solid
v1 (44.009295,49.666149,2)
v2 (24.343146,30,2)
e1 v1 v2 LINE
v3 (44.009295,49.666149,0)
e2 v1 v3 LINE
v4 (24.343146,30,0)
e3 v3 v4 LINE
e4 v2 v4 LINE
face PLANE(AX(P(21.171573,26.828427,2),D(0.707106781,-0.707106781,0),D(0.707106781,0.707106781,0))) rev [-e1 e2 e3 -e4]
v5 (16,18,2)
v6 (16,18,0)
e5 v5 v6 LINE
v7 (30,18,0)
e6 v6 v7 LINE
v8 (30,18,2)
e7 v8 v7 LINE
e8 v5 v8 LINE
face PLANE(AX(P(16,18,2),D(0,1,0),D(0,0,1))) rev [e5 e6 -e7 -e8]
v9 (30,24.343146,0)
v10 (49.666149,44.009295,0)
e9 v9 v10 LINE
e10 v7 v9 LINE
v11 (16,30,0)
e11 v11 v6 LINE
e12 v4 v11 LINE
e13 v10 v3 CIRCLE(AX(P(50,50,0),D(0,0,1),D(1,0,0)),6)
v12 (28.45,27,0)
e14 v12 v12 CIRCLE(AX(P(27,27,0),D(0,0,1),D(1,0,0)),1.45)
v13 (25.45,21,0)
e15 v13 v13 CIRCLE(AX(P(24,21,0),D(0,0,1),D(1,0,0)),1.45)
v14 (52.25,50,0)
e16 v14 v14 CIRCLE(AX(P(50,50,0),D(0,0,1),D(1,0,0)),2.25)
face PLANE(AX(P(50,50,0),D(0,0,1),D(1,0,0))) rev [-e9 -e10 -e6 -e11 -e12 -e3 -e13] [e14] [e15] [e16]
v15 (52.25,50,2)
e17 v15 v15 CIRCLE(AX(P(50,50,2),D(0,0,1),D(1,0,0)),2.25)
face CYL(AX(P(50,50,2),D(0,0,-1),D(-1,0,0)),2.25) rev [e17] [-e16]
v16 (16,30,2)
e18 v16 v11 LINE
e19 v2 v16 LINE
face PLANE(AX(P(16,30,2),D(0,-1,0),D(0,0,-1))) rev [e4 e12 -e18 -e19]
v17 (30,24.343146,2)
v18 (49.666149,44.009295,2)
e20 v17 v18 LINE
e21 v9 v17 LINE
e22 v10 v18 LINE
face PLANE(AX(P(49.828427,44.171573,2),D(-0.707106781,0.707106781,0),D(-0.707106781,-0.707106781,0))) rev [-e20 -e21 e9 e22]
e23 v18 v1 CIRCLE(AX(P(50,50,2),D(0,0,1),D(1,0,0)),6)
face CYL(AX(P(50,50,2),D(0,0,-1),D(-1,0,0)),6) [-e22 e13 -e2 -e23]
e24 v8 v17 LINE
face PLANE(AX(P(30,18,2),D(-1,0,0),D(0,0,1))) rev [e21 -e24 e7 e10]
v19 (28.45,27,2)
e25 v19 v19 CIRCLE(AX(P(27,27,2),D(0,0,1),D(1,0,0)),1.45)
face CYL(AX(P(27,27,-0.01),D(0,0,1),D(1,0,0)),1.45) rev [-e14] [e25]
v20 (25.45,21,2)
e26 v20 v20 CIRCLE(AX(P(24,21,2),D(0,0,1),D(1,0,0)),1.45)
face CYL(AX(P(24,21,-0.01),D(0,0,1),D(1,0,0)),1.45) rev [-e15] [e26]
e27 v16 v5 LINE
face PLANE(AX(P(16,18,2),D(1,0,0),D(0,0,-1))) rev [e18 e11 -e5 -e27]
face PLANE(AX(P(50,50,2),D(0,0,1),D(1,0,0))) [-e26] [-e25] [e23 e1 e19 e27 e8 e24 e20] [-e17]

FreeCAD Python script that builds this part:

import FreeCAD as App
import Part
import Sketcher
from FreeCAD import Vector
Q = App.Units.Quantity

doc = App.newDocument("Part")
body = doc.addObject("PartDesign::Body", "Body")

sketch1 = body.newObject("Sketcher::SketchObject", "Sketch")
sketch1.AttachmentSupport = (doc.getObject("XY_Plane"), [""])
sketch1.MapMode = "FlatFace"
sketch1.addGeometry(Part.Circle(Vector(50, 50, 0), Vector(0, 0, 1), 6), False)
sketch1.addGeometry(Part.Circle(Vector(50, 50, 0), Vector(0, 0, 1), 2.2), False)
sketch1.addConstraint(Sketcher.Constraint("Coincident", 1, 3, 0, 3))
sketch1.addConstraint(Sketcher.Constraint("Diameter", 0, Q("12 mm")))
sketch1.addConstraint(Sketcher.Constraint("Diameter", 1, Q("4.5 mm")))
sketch1.addConstraint(Sketcher.Constraint("DistanceX", -1, 1, 0, 3, Q("50 mm")))
sketch1.addConstraint(Sketcher.Constraint("DistanceY", -1, 1, 0, 3, Q("50 mm")))
pad1 = body.newObject("PartDesign::Pad", "Pad")
pad1.Profile = sketch1
pad1.Length = 2

sketch2 = body.newObject("Sketcher::SketchObject", "Sketch001")
sketch2.AttachmentSupport = (doc.getObject("XY_Plane"), [""])
sketch2.MapMode = "FlatFace"
sketch2.addGeometry(Part.LineSegment(Vector(44, 50, 0), Vector(21, 27, 0)), False)
sketch2.addGeometry(Part.LineSegment(Vector(21, 27, 0), Vector(27, 21, 0)), False)
sketch2.addGeometry(Part.LineSegment(Vector(27, 21, 0), Vector(50, 44, 0)), False)
sketch2.addGeometry(Part.LineSegment(Vector(50, 44, 0), Vector(44, 50, 0)), False)
sketch2.addConstraint(Sketcher.Constraint("Coincident", 0, 2, 1, 1))
sketch2.addConstraint(Sketcher.Constraint("Coincident", 1, 2, 2, 1))
sketch2.addConstraint(Sketcher.Constraint("Coincident", 2, 2, 3, 1))
sketch2.addConstraint(Sketcher.Constraint("Coincident", 3, 2, 0, 1))
sketch2.addConstraint(Sketcher.Constraint("Perpendicular", 0, 1))
sketch2.addConstraint(Sketcher.Constraint("Perpendicular", 1, 2))
sketch2.addConstraint(Sketcher.Constraint("Perpendicular", 2, 3))
sketch2.addConstraint(Sketcher.Constraint("Angle", 0, Q("-135 deg")))
sketch2.addConstraint(Sketcher.Constraint("Distance", 1, Q("8 mm")))
sketch2.addConstraint(Sketcher.Constraint("DistanceX", 1, 2, 2, 2, Q("23 mm")))
sketch2.addConstraint(Sketcher.Constraint("DistanceX", -1, 1, 0, 2, Q("21.171573 mm")))
sketch2.addConstraint(Sketcher.Constraint("DistanceY", -1, 1, 0, 2, Q("26.828427 mm")))
pad2 = body.newObject("PartDesign::Pad", "Pad001")
pad2.Profile = sketch2
pad2.Length = 2

sketch3 = body.newObject("Sketcher::SketchObject", "Sketch002")
sketch3.AttachmentSupport = (doc.getObject("XY_Plane"), [""])
sketch3.MapMode = "FlatFace"
sketch3.addGeometry(Part.LineSegment(Vector(16, 30, 0), Vector(16, 18, 0)), False)
sketch3.addGeometry(Part.LineSegment(Vector(16, 18, 0), Vector(30, 18, 0)), False)
sketch3.addGeometry(Part.LineSegment(Vector(30, 18, 0), Vector(30, 30, 0)), False)
sketch3.addGeometry(Part.LineSegment(Vector(30, 30, 0), Vector(16, 30, 0)), False)
sketch3.addConstraint(Sketcher.Constraint("Coincident", 0, 2, 1, 1))
sketch3.addConstraint(Sketcher.Constraint("Coincident", 1, 2, 2, 1))
sketch3.addConstraint(Sketcher.Constraint("Coincident", 2, 2, 3, 1))
sketch3.addConstraint(Sketcher.Constraint("Coincident", 3, 2, 0, 1))
sketch3.addConstraint(Sketcher.Constraint("Vertical", 0))
sketch3.addConstraint(Sketcher.Constraint("Horizontal", 1))
sketch3.addConstraint(Sketcher.Constraint("Vertical", 2))
sketch3.addConstraint(Sketcher.Constraint("Horizontal", 3))
sketch3.addConstraint(Sketcher.Constraint("DistanceX", 1, 1, 1, 2, Q("14 mm")))
sketch3.addConstraint(Sketcher.Constraint("DistanceY", 0, 2, 0, 1, Q("12 mm")))
sketch3.addConstraint(Sketcher.Constraint("DistanceX", -1, 1, 0, 2, Q("16 mm")))
sketch3.addConstraint(Sketcher.Constraint("DistanceY", -1, 1, 0, 2, Q("18 mm")))
pad3 = body.newObject("PartDesign::Pad", "Pad002")
pad3.Profile = sketch3
pad3.Length = 2

sketch4 = body.newObject("Sketcher::SketchObject", "Sketch003")
sketch4.AttachmentSupport = (doc.getObject("XY_Plane"), [""])
sketch4.MapMode = "FlatFace"
sketch4.AttachmentOffset = App.Placement(Vector(0, 0, 2), App.Rotation())
sketch4.addGeometry(Part.Circle(Vector(24, 21, 0), Vector(0, 0, 1), 1.4), False)
sketch4.addGeometry(Part.Circle(Vector(27, 27, 0), Vector(0, 0, 1), 1.4), False)
sketch4.addConstraint(Sketcher.Constraint("Equal", 0, 1))
sketch4.addConstraint(Sketcher.Constraint("Diameter", 0, Q("2.9 mm")))
sketch4.addConstraint(Sketcher.Constraint("DistanceX", -1, 1, 0, 3, Q("24 mm")))
sketch4.addConstraint(Sketcher.Constraint("DistanceY", -1, 1, 0, 3, Q("21 mm")))
sketch4.addConstraint(Sketcher.Constraint("DistanceX", -1, 1, 1, 3, Q("27 mm")))
sketch4.addConstraint(Sketcher.Constraint("DistanceY", -1, 1, 1, 3, Q("27 mm")))
pocket1 = body.newObject("PartDesign::Pocket", "Pocket")
pocket1.Profile = sketch4
pocket1.Length = 2.01

doc.recompute()
